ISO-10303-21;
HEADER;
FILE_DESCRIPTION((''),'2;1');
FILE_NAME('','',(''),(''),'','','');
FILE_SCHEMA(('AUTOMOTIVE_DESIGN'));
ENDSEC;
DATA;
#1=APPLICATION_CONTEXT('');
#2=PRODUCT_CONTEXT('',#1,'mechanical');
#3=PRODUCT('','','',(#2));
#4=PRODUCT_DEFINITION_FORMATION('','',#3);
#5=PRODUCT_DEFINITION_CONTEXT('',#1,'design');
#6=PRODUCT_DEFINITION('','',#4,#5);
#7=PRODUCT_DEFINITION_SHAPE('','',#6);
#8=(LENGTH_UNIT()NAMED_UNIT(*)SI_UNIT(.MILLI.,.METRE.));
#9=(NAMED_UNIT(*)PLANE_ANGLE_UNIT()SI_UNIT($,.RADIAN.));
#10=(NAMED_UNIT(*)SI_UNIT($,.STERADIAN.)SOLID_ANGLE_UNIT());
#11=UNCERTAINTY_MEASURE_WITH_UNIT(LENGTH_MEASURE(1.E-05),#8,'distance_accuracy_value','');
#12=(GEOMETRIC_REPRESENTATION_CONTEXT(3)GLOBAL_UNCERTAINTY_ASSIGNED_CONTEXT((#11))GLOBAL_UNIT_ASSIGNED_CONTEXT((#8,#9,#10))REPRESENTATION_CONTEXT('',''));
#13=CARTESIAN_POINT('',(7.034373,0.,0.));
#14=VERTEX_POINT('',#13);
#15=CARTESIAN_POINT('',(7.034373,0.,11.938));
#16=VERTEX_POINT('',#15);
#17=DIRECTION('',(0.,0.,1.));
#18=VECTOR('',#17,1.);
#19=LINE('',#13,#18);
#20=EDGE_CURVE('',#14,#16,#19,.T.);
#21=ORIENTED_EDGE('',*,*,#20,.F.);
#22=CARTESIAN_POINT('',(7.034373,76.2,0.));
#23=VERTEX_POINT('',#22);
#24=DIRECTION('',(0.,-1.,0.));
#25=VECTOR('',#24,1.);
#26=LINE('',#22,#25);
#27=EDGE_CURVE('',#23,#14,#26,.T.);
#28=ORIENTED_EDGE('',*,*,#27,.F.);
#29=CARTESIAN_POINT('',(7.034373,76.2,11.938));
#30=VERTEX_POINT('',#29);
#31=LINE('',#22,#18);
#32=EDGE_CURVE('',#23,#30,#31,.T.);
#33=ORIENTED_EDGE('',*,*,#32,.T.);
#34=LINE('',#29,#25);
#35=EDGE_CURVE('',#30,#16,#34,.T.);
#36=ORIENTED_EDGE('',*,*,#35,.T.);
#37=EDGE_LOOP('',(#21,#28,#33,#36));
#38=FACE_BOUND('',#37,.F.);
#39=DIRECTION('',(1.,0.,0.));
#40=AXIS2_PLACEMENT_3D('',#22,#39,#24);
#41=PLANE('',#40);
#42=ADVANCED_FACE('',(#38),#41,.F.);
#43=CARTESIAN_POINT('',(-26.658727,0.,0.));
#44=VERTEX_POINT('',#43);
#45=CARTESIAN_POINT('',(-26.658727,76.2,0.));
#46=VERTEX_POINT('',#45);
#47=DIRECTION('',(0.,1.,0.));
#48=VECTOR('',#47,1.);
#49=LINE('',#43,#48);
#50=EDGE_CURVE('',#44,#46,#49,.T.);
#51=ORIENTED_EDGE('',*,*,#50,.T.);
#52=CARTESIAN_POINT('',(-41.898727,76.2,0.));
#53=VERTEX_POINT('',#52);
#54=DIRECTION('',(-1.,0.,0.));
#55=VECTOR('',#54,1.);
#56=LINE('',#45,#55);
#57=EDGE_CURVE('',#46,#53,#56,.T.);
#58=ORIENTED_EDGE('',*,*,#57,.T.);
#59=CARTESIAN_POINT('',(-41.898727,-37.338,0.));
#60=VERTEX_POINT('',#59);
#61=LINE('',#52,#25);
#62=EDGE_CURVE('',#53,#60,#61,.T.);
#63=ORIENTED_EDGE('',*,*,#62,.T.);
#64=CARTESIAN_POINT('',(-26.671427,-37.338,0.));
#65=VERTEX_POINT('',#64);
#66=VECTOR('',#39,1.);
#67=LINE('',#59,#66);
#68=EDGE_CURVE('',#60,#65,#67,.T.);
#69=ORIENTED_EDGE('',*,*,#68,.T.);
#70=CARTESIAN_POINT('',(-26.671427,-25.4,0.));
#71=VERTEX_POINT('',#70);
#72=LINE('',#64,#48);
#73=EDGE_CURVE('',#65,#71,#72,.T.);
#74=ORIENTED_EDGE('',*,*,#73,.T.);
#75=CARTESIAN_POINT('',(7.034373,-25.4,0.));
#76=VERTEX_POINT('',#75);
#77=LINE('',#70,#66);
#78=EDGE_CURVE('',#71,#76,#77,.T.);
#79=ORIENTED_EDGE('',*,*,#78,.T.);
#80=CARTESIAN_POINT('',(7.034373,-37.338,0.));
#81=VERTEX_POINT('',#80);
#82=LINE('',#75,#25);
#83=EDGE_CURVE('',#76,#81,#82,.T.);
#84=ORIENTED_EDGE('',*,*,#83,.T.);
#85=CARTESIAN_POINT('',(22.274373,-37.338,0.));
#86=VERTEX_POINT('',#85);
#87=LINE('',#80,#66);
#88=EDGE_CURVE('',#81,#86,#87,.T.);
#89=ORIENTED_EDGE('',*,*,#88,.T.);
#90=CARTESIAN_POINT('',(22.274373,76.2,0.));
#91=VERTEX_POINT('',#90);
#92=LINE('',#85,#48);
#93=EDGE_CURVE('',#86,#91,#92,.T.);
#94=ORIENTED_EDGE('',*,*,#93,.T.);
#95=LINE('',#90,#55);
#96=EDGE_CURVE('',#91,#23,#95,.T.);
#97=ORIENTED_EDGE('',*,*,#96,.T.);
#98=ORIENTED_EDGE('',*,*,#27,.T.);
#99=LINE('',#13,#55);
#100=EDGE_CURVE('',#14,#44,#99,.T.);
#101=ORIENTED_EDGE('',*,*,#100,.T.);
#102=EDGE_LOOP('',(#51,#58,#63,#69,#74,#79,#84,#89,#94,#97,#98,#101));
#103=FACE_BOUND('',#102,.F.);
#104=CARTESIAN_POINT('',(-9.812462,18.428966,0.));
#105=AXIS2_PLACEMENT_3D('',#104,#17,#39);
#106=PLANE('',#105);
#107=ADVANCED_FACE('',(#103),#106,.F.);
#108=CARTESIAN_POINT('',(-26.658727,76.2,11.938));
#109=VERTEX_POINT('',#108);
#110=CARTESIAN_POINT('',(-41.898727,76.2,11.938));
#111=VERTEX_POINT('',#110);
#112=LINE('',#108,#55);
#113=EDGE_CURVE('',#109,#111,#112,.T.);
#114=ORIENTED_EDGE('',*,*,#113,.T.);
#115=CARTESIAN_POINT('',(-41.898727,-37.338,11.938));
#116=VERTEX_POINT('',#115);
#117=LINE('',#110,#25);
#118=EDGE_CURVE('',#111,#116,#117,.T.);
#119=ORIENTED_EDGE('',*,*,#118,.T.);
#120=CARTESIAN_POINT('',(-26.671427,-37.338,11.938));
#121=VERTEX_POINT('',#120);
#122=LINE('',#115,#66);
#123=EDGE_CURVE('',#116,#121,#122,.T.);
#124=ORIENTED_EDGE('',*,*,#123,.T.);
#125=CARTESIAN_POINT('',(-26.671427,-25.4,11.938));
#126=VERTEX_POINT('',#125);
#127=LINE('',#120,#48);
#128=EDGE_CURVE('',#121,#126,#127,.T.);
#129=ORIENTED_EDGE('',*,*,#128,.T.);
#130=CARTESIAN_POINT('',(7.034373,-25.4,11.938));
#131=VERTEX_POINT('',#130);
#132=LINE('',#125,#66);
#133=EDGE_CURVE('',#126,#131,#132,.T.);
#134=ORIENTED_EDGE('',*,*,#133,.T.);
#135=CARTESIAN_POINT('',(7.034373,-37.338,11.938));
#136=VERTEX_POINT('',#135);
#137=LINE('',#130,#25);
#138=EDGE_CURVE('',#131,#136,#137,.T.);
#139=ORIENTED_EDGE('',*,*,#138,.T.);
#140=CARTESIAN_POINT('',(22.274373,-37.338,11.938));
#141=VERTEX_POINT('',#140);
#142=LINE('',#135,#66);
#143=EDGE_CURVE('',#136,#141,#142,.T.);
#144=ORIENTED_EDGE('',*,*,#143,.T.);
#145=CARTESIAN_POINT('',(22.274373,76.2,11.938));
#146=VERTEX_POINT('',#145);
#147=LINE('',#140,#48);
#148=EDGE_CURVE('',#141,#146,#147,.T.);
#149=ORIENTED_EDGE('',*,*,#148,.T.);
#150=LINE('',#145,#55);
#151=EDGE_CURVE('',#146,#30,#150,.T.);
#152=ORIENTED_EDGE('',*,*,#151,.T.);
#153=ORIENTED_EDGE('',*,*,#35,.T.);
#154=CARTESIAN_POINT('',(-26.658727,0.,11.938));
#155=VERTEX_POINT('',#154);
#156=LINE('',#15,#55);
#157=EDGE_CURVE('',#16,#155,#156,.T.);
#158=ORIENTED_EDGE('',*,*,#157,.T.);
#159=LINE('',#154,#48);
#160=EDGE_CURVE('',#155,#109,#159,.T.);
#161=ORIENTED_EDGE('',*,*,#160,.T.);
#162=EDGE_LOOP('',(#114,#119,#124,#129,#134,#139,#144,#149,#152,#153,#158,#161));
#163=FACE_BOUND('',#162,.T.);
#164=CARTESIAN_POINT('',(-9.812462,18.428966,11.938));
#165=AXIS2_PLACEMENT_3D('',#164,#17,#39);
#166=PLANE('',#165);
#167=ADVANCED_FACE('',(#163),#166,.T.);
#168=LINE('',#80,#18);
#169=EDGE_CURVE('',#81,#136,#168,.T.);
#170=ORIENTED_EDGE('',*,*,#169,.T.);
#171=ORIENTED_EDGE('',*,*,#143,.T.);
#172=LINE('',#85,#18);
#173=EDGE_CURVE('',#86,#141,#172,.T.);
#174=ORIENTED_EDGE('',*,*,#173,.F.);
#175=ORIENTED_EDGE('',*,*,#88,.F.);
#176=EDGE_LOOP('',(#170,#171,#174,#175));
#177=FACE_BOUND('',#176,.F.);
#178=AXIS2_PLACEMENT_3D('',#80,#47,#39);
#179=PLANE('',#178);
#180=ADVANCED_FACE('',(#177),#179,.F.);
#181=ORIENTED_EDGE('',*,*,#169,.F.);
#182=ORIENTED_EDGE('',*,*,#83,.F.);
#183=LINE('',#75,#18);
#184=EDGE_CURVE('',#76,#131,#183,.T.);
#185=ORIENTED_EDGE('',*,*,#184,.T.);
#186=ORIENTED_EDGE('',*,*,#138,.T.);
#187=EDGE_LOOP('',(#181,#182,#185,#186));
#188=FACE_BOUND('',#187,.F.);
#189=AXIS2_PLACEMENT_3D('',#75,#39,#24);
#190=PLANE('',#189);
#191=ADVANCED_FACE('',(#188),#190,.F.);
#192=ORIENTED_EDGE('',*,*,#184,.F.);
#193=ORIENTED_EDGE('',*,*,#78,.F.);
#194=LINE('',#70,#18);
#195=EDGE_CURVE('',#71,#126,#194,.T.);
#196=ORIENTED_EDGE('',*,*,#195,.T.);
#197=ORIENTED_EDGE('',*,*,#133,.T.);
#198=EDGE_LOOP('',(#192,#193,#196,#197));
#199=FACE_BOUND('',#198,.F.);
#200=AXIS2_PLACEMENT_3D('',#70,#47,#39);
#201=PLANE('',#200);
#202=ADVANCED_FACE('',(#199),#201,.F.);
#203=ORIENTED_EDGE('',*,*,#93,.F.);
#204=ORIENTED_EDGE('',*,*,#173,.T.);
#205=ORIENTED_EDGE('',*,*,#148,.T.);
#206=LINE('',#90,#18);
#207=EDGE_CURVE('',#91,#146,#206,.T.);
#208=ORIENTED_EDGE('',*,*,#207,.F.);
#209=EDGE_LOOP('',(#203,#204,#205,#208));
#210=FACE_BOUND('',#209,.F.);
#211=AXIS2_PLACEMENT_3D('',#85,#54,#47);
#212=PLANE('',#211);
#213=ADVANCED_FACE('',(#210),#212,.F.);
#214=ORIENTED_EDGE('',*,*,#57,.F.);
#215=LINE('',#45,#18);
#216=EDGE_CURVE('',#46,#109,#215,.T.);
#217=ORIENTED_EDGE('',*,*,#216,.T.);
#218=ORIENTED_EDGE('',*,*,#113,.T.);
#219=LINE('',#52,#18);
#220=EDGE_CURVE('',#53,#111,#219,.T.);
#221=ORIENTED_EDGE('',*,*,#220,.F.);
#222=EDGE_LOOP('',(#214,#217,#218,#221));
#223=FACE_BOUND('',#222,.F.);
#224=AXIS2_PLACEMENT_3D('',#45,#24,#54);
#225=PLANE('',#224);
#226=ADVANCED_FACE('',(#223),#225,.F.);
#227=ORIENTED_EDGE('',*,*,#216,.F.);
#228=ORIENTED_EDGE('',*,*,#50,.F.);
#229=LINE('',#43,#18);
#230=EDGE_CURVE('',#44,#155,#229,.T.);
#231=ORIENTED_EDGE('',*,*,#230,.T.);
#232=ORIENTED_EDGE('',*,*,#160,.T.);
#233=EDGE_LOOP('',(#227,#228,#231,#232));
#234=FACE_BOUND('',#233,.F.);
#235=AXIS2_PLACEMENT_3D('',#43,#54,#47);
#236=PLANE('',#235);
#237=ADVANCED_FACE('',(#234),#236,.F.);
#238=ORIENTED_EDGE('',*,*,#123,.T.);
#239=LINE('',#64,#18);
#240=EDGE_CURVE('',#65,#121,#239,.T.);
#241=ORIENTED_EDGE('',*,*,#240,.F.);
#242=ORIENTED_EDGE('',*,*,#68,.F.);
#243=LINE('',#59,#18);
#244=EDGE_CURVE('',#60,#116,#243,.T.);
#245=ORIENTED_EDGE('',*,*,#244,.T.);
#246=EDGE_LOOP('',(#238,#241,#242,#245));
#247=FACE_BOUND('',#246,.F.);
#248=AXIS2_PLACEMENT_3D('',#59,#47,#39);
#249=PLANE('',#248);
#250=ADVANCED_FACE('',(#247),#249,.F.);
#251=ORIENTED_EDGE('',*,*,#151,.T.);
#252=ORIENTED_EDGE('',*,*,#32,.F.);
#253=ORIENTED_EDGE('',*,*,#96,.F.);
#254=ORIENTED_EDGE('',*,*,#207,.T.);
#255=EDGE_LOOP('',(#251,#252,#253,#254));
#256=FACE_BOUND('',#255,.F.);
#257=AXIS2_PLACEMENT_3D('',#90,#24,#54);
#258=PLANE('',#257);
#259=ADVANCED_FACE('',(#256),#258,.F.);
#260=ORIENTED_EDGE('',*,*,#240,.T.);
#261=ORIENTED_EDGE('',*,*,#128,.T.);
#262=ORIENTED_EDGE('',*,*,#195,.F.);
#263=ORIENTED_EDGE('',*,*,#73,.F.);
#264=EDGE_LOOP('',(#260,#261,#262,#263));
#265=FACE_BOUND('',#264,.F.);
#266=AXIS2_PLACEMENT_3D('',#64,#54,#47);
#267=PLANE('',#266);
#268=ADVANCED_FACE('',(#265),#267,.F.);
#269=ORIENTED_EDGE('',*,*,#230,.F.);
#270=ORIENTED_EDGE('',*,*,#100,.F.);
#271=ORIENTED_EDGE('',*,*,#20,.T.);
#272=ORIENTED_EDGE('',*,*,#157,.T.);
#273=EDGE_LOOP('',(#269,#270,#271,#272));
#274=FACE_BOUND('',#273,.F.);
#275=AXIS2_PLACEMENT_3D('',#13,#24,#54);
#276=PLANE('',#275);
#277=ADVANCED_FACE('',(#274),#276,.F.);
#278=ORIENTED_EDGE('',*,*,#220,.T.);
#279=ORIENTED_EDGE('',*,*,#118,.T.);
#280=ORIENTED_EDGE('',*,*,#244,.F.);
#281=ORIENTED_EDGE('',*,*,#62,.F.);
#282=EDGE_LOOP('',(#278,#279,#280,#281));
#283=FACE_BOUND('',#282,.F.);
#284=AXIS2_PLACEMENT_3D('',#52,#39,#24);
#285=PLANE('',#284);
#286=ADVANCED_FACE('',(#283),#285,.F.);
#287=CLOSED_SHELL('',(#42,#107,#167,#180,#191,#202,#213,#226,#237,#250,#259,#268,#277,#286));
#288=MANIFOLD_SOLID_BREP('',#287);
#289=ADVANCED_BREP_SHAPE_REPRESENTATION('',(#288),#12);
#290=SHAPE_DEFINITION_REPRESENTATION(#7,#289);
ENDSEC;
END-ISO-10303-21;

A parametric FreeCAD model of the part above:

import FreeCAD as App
import Part
import Sketcher
from FreeCAD import Vector
Q = App.Units.Quantity

doc = App.newDocument("Part")
body = doc.addObject("PartDesign::Body", "Body")

# Sketch on XY plane
sketch1 = body.newObject("Sketcher::SketchObject", "Sketch")
sketch1.AttachmentSupport = (doc.getObject("XY_Plane"), [""])
sketch1.MapMode = "FlatFace"
sketch1.addGeometry([
    Part.LineSegment(Vector(7, 0, 0), Vector(-27, 0, 0)),  # 0
    Part.LineSegment(Vector(-27, 0, 0), Vector(-27, 76, 0)),  # 1
    Part.LineSegment(Vector(-27, 76, 0), Vector(-42, 76, 0)),  # 2
    Part.LineSegment(Vector(-42, 76, 0), Vector(-42, -37, 0)),  # 3
    Part.LineSegment(Vector(-42, -37, 0), Vector(-27, -37, 0)),  # 4
    Part.LineSegment(Vector(-27, -37, 0), Vector(-27, -25, 0)),  # 5
    Part.LineSegment(Vector(-27, -25, 0), Vector(7, -25, 0)),  # 6
    Part.LineSegment(Vector(7, -25, 0), Vector(7, -37, 0)),  # 7
    Part.LineSegment(Vector(7, -37, 0), Vector(22, -37, 0)),  # 8
    Part.LineSegment(Vector(22, -37, 0), Vector(22, 76, 0)),  # 9
    Part.LineSegment(Vector(22, 76, 0), Vector(7, 76, 0)),  # 10
    Part.LineSegment(Vector(7, 76, 0), Vector(7, 0, 0)),  # 11
], False)
sketch1.addConstraint([
    Sketcher.Constraint("Coincident", 0, 2, 1, 1),
    Sketcher.Constraint("Coincident", 1, 2, 2, 1),
    Sketcher.Constraint("Coincident", 2, 2, 3, 1),
    Sketcher.Constraint("Coincident", 3, 2, 4, 1),
    Sketcher.Constraint("Coincident", 4, 2, 5, 1),
    Sketcher.Constraint("Coincident", 5, 2, 6, 1),
    Sketcher.Constraint("Coincident", 6, 2, 7, 1),
    Sketcher.Constraint("Coincident", 7, 2, 8, 1),
    Sketcher.Constraint("Coincident", 8, 2, 9, 1),
    Sketcher.Constraint("Coincident", 9, 2, 10, 1),
    Sketcher.Constraint("Coincident", 10, 2, 11, 1),
    Sketcher.Constraint("Coincident", 11, 2, 0, 1),
    Sketcher.Constraint("Horizontal", 0),
    Sketcher.Constraint("Vertical", 1),
    Sketcher.Constraint("Horizontal", 2),
    Sketcher.Constraint("Vertical", 3),
    Sketcher.Constraint("Horizontal", 4),
    Sketcher.Constraint("Vertical", 5),
    Sketcher.Constraint("Horizontal", 6),
    Sketcher.Constraint("Vertical", 7),
    Sketcher.Constraint("Horizontal", 8),
    Sketcher.Constraint("Vertical", 9),
    Sketcher.Constraint("Horizontal", 10),
    Sketcher.Constraint("Vertical", 11),
    Sketcher.Constraint("PointOnObject", 0, 2, -1),
    Sketcher.Constraint("Horizontal", 4, 2, 7, 2),
    Sketcher.Constraint("Horizontal", 2, 2, 9, 2),
    Sketcher.Constraint("Vertical", 7, 2, 10, 2),
    Sketcher.Constraint("Equal", 2, 8),
    Sketcher.Constraint("DistanceY", 1, 1, 1, 2, Q("3 in")),
    Sketcher.Constraint("DistanceX", 2, 2, 2, 1, Q("0.6 in")),
    Sketcher.Constraint("DistanceY", 5, 2, -1, 1, Q("1 in")),
    Sketcher.Constraint("DistanceY", 3, 2, 3, 1, Q("4.47 in")),
    Sketcher.Constraint("DistanceX", 6, 1, 6, 2, Q("1.327 in")),
    Sketcher.Constraint("DistanceX", 0, 2, 0, 1, Q("1.3265 in")),
    Sketcher.Constraint("DistanceX", 0, 2, -1, 1, Q("26.658727 mm")),
])
pad1 = body.newObject("PartDesign::Pad", "Pad")
pad1.Profile = sketch1
pad1.Length = Q("0.47 in")

doc.recompute()
